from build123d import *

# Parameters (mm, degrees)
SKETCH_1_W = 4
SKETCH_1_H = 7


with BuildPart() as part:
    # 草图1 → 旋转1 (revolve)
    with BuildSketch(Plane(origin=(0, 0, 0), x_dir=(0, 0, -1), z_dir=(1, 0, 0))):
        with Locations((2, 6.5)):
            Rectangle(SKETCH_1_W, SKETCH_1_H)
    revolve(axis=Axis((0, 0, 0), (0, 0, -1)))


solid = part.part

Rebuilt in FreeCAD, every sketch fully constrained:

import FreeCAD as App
import Part
import Sketcher
Q = App.Units.Quantity

doc = App.newDocument("Part")
params = doc.addObject("Spreadsheet::Sheet", "Params")
for row, (alias, value) in enumerate([
    ("sketch1_width", "7 mm"),
    ("sketch1_height", "4 mm"),
    ("revolution_angle", "360 deg"),
], start=1):
    params.set(f"A{row}", alias)
    params.set(f"B{row}", "=" + value)
    params.setAlias(f"B{row}", alias)

body = doc.addObject("PartDesign::Body", "Body")

# Sketch on YZ plane
sketch1 = body.newObject("Sketcher::SketchObject", "Sketch")
sketch1.AttachmentSupport = (doc.getObject("YZ_Plane"), [""])
sketch1.MapMode = "FlatFace"
sketch1.addGeometry([
    Part.LineSegment(App.Vector(10, 0, 0), App.Vector(3, 0, 0)),
    Part.LineSegment(App.Vector(3, 0, 0), App.Vector(3, -4, 0)),
    Part.LineSegment(App.Vector(3, -4, 0), App.Vector(10, -4, 0)),
    Part.LineSegment(App.Vector(10, -4, 0), App.Vector(10, 0, 0)),
], False)
sketch1.addConstraint([
    Sketcher.Constraint("Coincident", 0, 2, 1, 1),
    Sketcher.Constraint("Coincident", 1, 2, 2, 1),
    Sketcher.Constraint("Coincident", 2, 2, 3, 1),
    Sketcher.Constraint("Coincident", 3, 2, 0, 1),
    Sketcher.Constraint("Horizontal", 0),
    Sketcher.Constraint("Vertical", 1),
    Sketcher.Constraint("Horizontal", 2),
    Sketcher.Constraint("Vertical", 3),
    Sketcher.Constraint("PointOnObject", 0, 2, -1),
    Sketcher.Constraint("DistanceX", 0, 2, 0, 1, Q("7 mm")),
    Sketcher.Constraint("DistanceY", 1, 2, 1, 1, Q("4 mm")),
    Sketcher.Constraint("DistanceX", -1, 1, 0, 2, Q("3 mm")),
])
sketch1.setExpression("Constraints[9]", "Params.sketch1_width")
sketch1.setExpression("Constraints[10]", "Params.sketch1_height")
revolution = body.newObject("PartDesign::Revolution", "Revolution")
revolution.Profile = sketch1
revolution.ReferenceAxis = (sketch1, ["V_Axis"])
revolution.setExpression("Angle", "Params.revolution_angle")

doc.recompute()
